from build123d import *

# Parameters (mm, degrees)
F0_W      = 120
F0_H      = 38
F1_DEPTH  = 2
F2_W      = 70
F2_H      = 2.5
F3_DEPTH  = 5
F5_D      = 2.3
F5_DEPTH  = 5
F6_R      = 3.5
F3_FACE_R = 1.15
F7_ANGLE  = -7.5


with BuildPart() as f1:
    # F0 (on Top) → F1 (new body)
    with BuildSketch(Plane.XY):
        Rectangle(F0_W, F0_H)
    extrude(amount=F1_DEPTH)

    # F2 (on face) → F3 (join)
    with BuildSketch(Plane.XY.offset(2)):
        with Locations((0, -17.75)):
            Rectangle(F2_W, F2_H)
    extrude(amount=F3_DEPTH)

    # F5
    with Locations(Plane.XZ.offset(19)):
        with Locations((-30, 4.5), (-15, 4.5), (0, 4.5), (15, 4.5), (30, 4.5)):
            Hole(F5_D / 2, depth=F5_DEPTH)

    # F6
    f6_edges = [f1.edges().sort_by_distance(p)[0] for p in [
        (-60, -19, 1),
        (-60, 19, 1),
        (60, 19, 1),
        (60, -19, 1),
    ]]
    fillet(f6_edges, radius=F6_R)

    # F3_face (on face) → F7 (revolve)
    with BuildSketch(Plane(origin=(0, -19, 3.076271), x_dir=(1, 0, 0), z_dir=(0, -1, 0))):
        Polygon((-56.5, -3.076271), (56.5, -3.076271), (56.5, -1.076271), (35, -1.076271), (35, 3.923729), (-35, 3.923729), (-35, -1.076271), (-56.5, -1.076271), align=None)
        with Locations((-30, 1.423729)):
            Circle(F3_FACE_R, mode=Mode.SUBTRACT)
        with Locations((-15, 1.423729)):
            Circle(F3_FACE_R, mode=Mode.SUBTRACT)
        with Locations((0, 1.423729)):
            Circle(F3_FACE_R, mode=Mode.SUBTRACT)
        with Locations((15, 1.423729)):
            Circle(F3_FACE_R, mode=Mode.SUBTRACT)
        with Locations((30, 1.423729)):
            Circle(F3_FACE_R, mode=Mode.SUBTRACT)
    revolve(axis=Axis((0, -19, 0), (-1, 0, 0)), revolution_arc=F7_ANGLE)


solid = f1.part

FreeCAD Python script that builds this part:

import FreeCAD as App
import Part
import Sketcher


def edges_at(feature, points):
    """Names of the edges that pass closest to the given points."""
    edges = feature.Shape.Edges
    near = lambda p: min(range(len(edges)), key=lambda i: edges[i].distToShape(Part.Vertex(*p))[0])
    return sorted({f"Edge{near(p) + 1}" for p in points})

doc = App.newDocument("Part")
params = doc.addObject("Spreadsheet::Sheet", "Params")
for row, (alias, value) in enumerate([
    ("sketch1_width", "120 mm"),
    ("sketch1_height", "38 mm"),
    ("pad1_length", "2 mm"),
    ("sketch2_width", "70 mm"),
    ("sketch2_height", "2.5 mm"),
    ("pad2_length", "5 mm"),
    ("sketch3_diameter", "2.3 mm"),
    ("hole_diameter", "2.3 mm"),
    ("hole_depth", "5 mm"),
    ("fillet_radius", "3.5 mm"),
    ("sketch4_diameter", "2.3 mm"),
    ("sketch4_width", "113 mm"),
    ("sketch4_width2", "70 mm"),
    ("sketch4_height", "2 mm"),
    ("sketch4_height2", "5 mm"),
    ("revolution_angle", "7.5 deg"),
], start=1):
    params.set(f"A{row}", alias)
    params.set(f"B{row}", "=" + value)
    params.setAlias(f"B{row}", alias)

body = doc.addObject("PartDesign::Body", "Body")

# Sketch on XY plane
sketch1 = doc.addObject("Sketcher::SketchObject", "Sketch")
body.addObject(sketch1)
sketch1.AttachmentSupport = (doc.XY_Plane, [""])
sketch1.MapMode = "FlatFace"
sketch1.addGeometry(Part.LineSegment(App.Vector(-60, 19, 0), App.Vector(-60, -19, 0)), False)
sketch1.addGeometry(Part.LineSegment(App.Vector(-60, -19, 0), App.Vector(60, -19, 0)), False)
sketch1.addGeometry(Part.LineSegment(App.Vector(60, -19, 0), App.Vector(60, 19, 0)), False)
sketch1.addGeometry(Part.LineSegment(App.Vector(60, 19, 0), App.Vector(-60, 19, 0)), False)
sketch1.addConstraint(Sketcher.Constraint("Coincident", 0, 2, 1, 1))
sketch1.addConstraint(Sketcher.Constraint("Coincident", 1, 2, 2, 1))
sketch1.addConstraint(Sketcher.Constraint("Coincident", 2, 2, 3, 1))
sketch1.addConstraint(Sketcher.Constraint("Coincident", 3, 2, 0, 1))
sketch1.addConstraint(Sketcher.Constraint("Vertical", 0))
sketch1.addConstraint(Sketcher.Constraint("Horizontal", 1))
sketch1.addConstraint(Sketcher.Constraint("Vertical", 2))
sketch1.addConstraint(Sketcher.Constraint("Horizontal", 3))
sketch1.addConstraint(Sketcher.Constraint("Symmetric", 0, 2, 2, 2, -1, 1))
sketch1.addConstraint(Sketcher.Constraint("DistanceX", 1, 1, 1, 2, 120.0))
sketch1.addConstraint(Sketcher.Constraint("DistanceY", 0, 2, 0, 1, 38.0))
sketch1.setExpression("Constraints[9]", "Params.sketch1_width")
sketch1.setExpression("Constraints[10]", "Params.sketch1_height")
pad1 = doc.addObject("PartDesign::Pad", "Pad")
body.addObject(pad1)
pad1.Profile = sketch1
pad1.setExpression("Length", "Params.pad1_length")

# Sketch on XY plane
sketch2 = doc.addObject("Sketcher::SketchObject", "Sketch001")
body.addObject(sketch2)
sketch2.AttachmentSupport = (doc.XY_Plane, [""])
sketch2.MapMode = "FlatFace"
sketch2.AttachmentOffset = App.Placement(App.Vector(0, 0, 2), App.Rotation())
sketch2.addGeometry(Part.LineSegment(App.Vector(-35, -16.5, 0), App.Vector(-35, -19, 0)), False)
sketch2.addGeometry(Part.LineSegment(App.Vector(-35, -19, 0), App.Vector(35, -19, 0)), False)
sketch2.addGeometry(Part.LineSegment(App.Vector(35, -19, 0), App.Vector(35, -16.5, 0)), False)
sketch2.addGeometry(Part.LineSegment(App.Vector(35, -16.5, 0), App.Vector(-35, -16.5, 0)), False)
sketch2.addConstraint(Sketcher.Constraint("Coincident", 0, 2, 1, 1))
sketch2.addConstraint(Sketcher.Constraint("Coincident", 1, 2, 2, 1))
sketch2.addConstraint(Sketcher.Constraint("Coincident", 2, 2, 3, 1))
sketch2.addConstraint(Sketcher.Constraint("Coincident", 3, 2, 0, 1))
sketch2.addConstraint(Sketcher.Constraint("Vertical", 0))
sketch2.addConstraint(Sketcher.Constraint("Horizontal", 1))
sketch2.addConstraint(Sketcher.Constraint("Vertical", 2))
sketch2.addConstraint(Sketcher.Constraint("Horizontal", 3))
sketch2.addConstraint(Sketcher.Constraint("DistanceX", 1, 1, 1, 2, 70.0))
sketch2.addConstraint(Sketcher.Constraint("DistanceY", 0, 2, 0, 1, 2.5))
sketch2.addConstraint(Sketcher.Constraint("DistanceX", 0, 2, -1, 1, 35.0))
sketch2.addConstraint(Sketcher.Constraint("DistanceY", 0, 2, -1, 1, 19.0))
sketch2.setExpression("Constraints[8]", "Params.sketch2_width")
sketch2.setExpression("Constraints[9]", "Params.sketch2_height")
pad2 = doc.addObject("PartDesign::Pad", "Pad001")
body.addObject(pad2)
pad2.Profile = sketch2
pad2.setExpression("Length", "Params.pad2_length")

# Sketch on XZ plane
sketch3 = doc.addObject("Sketcher::SketchObject", "Sketch002")
body.addObject(sketch3)
sketch3.AttachmentSupport = (doc.XZ_Plane, [""])
sketch3.MapMode = "FlatFace"
sketch3.AttachmentOffset = App.Placement(App.Vector(0, 0, 19), App.Rotation())
sketch3.addGeometry(Part.Circle(App.Vector(-30, 4.5, 0), App.Vector(0, 0, 1), 1.1), False)
sketch3.addGeometry(Part.Circle(App.Vector(-15, 4.5, 0), App.Vector(0, 0, 1), 1.1), False)
sketch3.addGeometry(Part.Circle(App.Vector(0, 4.5, 0), App.Vector(0, 0, 1), 1.1), False)
sketch3.addGeometry(Part.Circle(App.Vector(15, 4.5, 0), App.Vector(0, 0, 1), 1.1), False)
sketch3.addGeometry(Part.Circle(App.Vector(30, 4.5, 0), App.Vector(0, 0, 1), 1.1), False)
sketch3.addConstraint(Sketcher.Constraint("Equal", 0, 1))
sketch3.addConstraint(Sketcher.Constraint("Equal", 1, 2))
sketch3.addConstraint(Sketcher.Constraint("Equal", 2, 3))
sketch3.addConstraint(Sketcher.Constraint("Equal", 3, 4))
sketch3.addConstraint(Sketcher.Constraint("Symmetric", 1, 3, 3, 3, -2))
sketch3.addConstraint(Sketcher.Constraint("Symmetric", 0, 3, 4, 3, -2))
sketch3.addConstraint(Sketcher.Constraint("PointOnObject", 2, 3, -2))
sketch3.addConstraint(Sketcher.Constraint("Horizontal", 0, 3, 1, 3))
sketch3.addConstraint(Sketcher.Constraint("Horizontal", 1, 3, 2, 3))
sketch3.addConstraint(Sketcher.Constraint("Diameter", 0, 2.3))
sketch3.addConstraint(Sketcher.Constraint("DistanceX", 0, 3, -1, 1, 30.0))
sketch3.addConstraint(Sketcher.Constraint("DistanceX", 1, 3, -1, 1, 15.0))
sketch3.addConstraint(Sketcher.Constraint("DistanceY", -1, 1, 0, 3, 4.5))
sketch3.setExpression("Constraints[9]", "Params.sketch3_diameter")
doc.recompute()
hole = doc.addObject("PartDesign::Hole", "Hole")
body.addObject(hole)
hole.Profile = sketch3
hole.ThreadType = "None"
hole.setExpression("Diameter", "Params.hole_diameter")
hole.DepthType = "Dimension"
hole.setExpression("Depth", "Params.hole_depth")
hole.DrillPoint = "Flat"
doc.recompute()

fillet = doc.addObject("PartDesign::Fillet", "Fillet")
body.addObject(fillet)
fillet.Base = (hole, edges_at(hole, [
    (-60, -19, 1),
    (-60, 19, 1),
    (60, 19, 1),
    (60, -19, 1),
]))
fillet.setExpression("Radius", "Params.fillet_radius")

# Sketch on XZ plane
sketch4 = doc.addObject("Sketcher::SketchObject", "Sketch003")
body.addObject(sketch4)
sketch4.AttachmentSupport = (doc.XZ_Plane, [""])
sketch4.MapMode = "FlatFace"
sketch4.AttachmentOffset = App.Placement(App.Vector(0, 0, 19), App.Rotation())
sketch4.addGeometry(Part.LineSegment(App.Vector(-56.5, 0, 0), App.Vector(56.5, 0, 0)), False)
sketch4.addGeometry(Part.LineSegment(App.Vector(56.5, 0, 0), App.Vector(56.5, 2, 0)), False)
sketch4.addGeometry(Part.LineSegment(App.Vector(56.5, 2, 0), App.Vector(35, 2, 0)), False)
sketch4.addGeometry(Part.LineSegment(App.Vector(35, 2, 0), App.Vector(35, 7, 0)), False)
sketch4.addGeometry(Part.LineSegment(App.Vector(35, 7, 0), App.Vector(-35, 7, 0)), False)
sketch4.addGeometry(Part.LineSegment(App.Vector(-35, 7, 0), App.Vector(-35, 2, 0)), False)
sketch4.addGeometry(Part.LineSegment(App.Vector(-35, 2, 0), App.Vector(-56.5, 2, 0)), False)
sketch4.addGeometry(Part.LineSegment(App.Vector(-56.5, 2, 0), App.Vector(-56.5, 0, 0)), False)
sketch4.addGeometry(Part.Circle(App.Vector(0, 4.5, 0), App.Vector(0, 0, 1), 1.1), False)
sketch4.addGeometry(Part.Circle(App.Vector(-30, 4.5, 0), App.Vector(0, 0, 1), 1.1), False)
sketch4.addGeometry(Part.Circle(App.Vector(-15, 4.5, 0), App.Vector(0, 0, 1), 1.1), False)
sketch4.addGeometry(Part.Circle(App.Vector(15, 4.5, 0), App.Vector(0, 0, 1), 1.1), False)
sketch4.addGeometry(Part.Circle(App.Vector(30, 4.5, 0), App.Vector(0, 0, 1), 1.1), False)
sketch4.addConstraint(Sketcher.Constraint("Coincident", 0, 2, 1, 1))
sketch4.addConstraint(Sketcher.Constraint("Coincident", 1, 2, 2, 1))
sketch4.addConstraint(Sketcher.Constraint("Coincident", 2, 2, 3, 1))
sketch4.addConstraint(Sketcher.Constraint("Coincident", 3, 2, 4, 1))
sketch4.addConstraint(Sketcher.Constraint("Coincident", 4, 2, 5, 1))
sketch4.addConstraint(Sketcher.Constraint("Coincident", 5, 2, 6, 1))
sketch4.addConstraint(Sketcher.Constraint("Coincident", 6, 2, 7, 1))
sketch4.addConstraint(Sketcher.Constraint("Coincident", 7, 2, 0, 1))
sketch4.addConstraint(Sketcher.Constraint("Horizontal", 0))
sketch4.addConstraint(Sketcher.Constraint("Vertical", 1))
sketch4.addConstraint(Sketcher.Constraint("Horizontal", 2))
sketch4.addConstraint(Sketcher.Constraint("Vertical", 3))
sketch4.addConstraint(Sketcher.Constraint("Horizontal", 4))
sketch4.addConstraint(Sketcher.Constraint("Vertical", 5))
sketch4.addConstraint(Sketcher.Constraint("Horizontal", 6))
sketch4.addConstraint(Sketcher.Constraint("Vertical", 7))
sketch4.addConstraint(Sketcher.Constraint("Equal", 8, 9))
sketch4.addConstraint(Sketcher.Constraint("Equal", 9, 10))
sketch4.addConstraint(Sketcher.Constraint("Equal", 10, 11))
sketch4.addConstraint(Sketcher.Constraint("Equal", 11, 12))
sketch4.addConstraint(Sketcher.Constraint("Symmetric", 0, 2, 7, 2, -1, 1))
sketch4.addConstraint(Sketcher.Constraint("Symmetric", 10, 3, 11, 3, -2))
sketch4.addConstraint(Sketcher.Constraint("Symmetric", 9, 3, 12, 3, -2))
sketch4.addConstraint(Sketcher.Constraint("Symmetric", 2, 2, 5, 2, -2))
sketch4.addConstraint(Sketcher.Constraint("PointOnObject", 8, 3, -2))
sketch4.addConstraint(Sketcher.Constraint("Horizontal", 8, 3, 9, 3))
sketch4.addConstraint(Sketcher.Constraint("Horizontal", 9, 3, 10, 3))
sketch4.addConstraint(Sketcher.Constraint("Diameter", 8, 2.3))
sketch4.addConstraint(Sketcher.Constraint("DistanceX", 0, 1, 0, 2, 113.0))
sketch4.addConstraint(Sketcher.Constraint("DistanceX", 4, 2, 4, 1, 70.0))
sketch4.addConstraint(Sketcher.Constraint("DistanceY", 1, 1, 1, 2, 2.0))
sketch4.addConstraint(Sketcher.Constraint("DistanceY", 3, 1, 3, 2, 5.0))
sketch4.addConstraint(Sketcher.Constraint("DistanceX", 9, 3, -1, 1, 30.0))
sketch4.addConstraint(Sketcher.Constraint("DistanceX", 10, 3, -1, 1, 15.0))
sketch4.addConstraint(Sketcher.Constraint("DistanceY", -1, 1, 8, 3, 4.5))
sketch4.setExpression("Constraints[27]", "Params.sketch4_diameter")
sketch4.setExpression("Constraints[28]", "Params.sketch4_width")
sketch4.setExpression("Constraints[29]", "Params.sketch4_width2")
sketch4.setExpression("Constraints[30]", "Params.sketch4_height")
sketch4.setExpression("Constraints[31]", "Params.sketch4_height2")
revolution = doc.addObject("PartDesign::Revolution", "Revolution")
body.addObject(revolution)
revolution.Profile = sketch4
revolution.ReferenceAxis = (sketch4, ["H_Axis"])
revolution.setExpression("Angle", "Params.revolution_angle")

doc.recompute()
